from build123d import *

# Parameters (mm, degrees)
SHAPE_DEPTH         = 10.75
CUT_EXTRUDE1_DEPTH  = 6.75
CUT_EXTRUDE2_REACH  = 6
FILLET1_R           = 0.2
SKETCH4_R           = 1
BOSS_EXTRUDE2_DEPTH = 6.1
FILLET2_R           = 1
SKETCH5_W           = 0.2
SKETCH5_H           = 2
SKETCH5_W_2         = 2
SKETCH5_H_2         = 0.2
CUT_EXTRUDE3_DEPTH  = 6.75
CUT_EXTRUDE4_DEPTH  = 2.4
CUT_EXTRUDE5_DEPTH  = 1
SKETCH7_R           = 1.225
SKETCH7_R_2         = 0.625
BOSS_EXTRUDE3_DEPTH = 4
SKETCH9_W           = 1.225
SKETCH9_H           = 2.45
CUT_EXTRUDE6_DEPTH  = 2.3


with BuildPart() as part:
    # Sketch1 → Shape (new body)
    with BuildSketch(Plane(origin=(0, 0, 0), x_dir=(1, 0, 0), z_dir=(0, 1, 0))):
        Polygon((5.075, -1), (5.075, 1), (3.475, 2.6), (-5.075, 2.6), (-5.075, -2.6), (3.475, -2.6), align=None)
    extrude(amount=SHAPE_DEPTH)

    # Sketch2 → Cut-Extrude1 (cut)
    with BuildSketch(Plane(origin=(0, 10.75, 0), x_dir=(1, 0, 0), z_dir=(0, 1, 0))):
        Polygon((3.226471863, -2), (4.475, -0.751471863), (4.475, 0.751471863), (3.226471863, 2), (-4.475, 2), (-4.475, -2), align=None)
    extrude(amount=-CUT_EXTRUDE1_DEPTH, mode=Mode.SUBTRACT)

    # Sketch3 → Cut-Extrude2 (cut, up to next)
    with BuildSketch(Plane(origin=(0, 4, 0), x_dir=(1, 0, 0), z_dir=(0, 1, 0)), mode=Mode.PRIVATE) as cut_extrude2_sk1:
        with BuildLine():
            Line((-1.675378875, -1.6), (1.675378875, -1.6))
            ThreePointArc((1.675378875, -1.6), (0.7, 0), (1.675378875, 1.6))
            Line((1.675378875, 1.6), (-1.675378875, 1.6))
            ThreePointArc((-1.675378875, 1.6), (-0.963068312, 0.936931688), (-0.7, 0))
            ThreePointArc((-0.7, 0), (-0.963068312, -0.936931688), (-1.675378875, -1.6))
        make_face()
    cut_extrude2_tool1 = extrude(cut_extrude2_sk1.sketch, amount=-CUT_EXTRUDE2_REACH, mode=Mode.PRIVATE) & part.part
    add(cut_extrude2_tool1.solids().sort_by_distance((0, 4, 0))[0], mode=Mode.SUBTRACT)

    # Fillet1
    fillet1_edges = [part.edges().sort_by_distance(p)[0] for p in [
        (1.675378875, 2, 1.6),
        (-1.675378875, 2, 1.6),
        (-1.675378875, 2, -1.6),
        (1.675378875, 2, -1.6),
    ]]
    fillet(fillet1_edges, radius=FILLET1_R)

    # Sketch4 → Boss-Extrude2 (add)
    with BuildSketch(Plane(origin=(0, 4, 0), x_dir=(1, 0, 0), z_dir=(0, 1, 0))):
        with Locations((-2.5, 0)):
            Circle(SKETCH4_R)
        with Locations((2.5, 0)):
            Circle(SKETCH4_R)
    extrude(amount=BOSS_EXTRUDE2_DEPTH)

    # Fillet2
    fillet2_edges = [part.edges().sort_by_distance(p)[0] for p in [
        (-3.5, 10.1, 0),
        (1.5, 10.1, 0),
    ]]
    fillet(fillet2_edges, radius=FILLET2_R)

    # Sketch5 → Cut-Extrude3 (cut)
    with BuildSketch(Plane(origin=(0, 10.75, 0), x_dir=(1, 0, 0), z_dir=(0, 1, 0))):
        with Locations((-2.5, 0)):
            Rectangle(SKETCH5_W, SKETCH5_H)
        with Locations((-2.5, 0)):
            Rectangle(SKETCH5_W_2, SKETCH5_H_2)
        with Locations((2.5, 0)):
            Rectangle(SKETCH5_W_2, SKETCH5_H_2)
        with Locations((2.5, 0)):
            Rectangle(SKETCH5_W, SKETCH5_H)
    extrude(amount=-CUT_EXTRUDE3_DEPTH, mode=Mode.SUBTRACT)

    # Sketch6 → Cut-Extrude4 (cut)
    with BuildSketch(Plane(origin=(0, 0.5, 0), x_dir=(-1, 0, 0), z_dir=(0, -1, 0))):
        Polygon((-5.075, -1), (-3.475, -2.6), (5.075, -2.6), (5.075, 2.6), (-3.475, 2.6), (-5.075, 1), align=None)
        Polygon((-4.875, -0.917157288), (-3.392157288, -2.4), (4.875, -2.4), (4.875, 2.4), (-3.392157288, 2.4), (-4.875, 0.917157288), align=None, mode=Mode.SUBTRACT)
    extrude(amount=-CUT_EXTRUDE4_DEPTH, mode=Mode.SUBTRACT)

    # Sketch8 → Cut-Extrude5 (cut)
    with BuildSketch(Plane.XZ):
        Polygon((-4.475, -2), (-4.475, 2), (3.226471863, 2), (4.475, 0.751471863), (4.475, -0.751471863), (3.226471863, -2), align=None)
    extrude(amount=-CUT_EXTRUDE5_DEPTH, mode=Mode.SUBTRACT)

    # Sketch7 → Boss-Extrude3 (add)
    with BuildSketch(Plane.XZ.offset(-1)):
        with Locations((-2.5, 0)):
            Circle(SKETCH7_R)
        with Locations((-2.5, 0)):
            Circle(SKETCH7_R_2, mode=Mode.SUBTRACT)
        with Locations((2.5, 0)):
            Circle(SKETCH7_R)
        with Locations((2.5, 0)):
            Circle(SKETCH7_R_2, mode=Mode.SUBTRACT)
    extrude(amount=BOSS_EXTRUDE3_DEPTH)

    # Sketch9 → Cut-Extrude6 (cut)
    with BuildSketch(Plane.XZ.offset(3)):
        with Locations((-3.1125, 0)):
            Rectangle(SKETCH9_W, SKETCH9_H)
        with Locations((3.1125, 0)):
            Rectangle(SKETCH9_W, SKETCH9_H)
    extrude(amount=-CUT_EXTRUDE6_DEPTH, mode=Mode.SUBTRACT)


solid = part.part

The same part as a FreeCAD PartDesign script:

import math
import FreeCAD as App
import Part
import Sketcher
Q = App.Units.Quantity


def edges_at(feature, points):
    """Names of the edges that pass closest to the given points."""
    edges = feature.Shape.Edges
    near = lambda p: min(range(len(edges)), key=lambda i: edges[i].distToShape(Part.Vertex(*p))[0])
    return sorted({f"Edge{near(p) + 1}" for p in points})

doc = App.newDocument("Part")
body = doc.addObject("PartDesign::Body", "Body")

sketch1 = body.newObject("Sketcher::SketchObject", "Sketch")
sketch1.AttachmentSupport = (doc.getObject("XZ_Plane"), [""])
sketch1.MapMode = "FlatFace"
sketch1.addGeometry([
    Part.LineSegment(App.Vector(5.1, 1, 0), App.Vector(5.1, -1, 0)),
    Part.LineSegment(App.Vector(5.1, -1, 0), App.Vector(3.5, -2.6, 0)),
    Part.LineSegment(App.Vector(3.5, -2.6, 0), App.Vector(-5.1, -2.6, 0)),
    Part.LineSegment(App.Vector(-5.1, -2.6, 0), App.Vector(-5.1, 2.6, 0)),
    Part.LineSegment(App.Vector(-5.1, 2.6, 0), App.Vector(3.5, 2.6, 0)),
    Part.LineSegment(App.Vector(3.5, 2.6, 0), App.Vector(5.1, 1, 0)),
], False)
sketch1.addConstraint([
    Sketcher.Constraint("Coincident", 0, 2, 1, 1),
    Sketcher.Constraint("Coincident", 1, 2, 2, 1),
    Sketcher.Constraint("Coincident", 2, 2, 3, 1),
    Sketcher.Constraint("Coincident", 3, 2, 4, 1),
    Sketcher.Constraint("Coincident", 4, 2, 5, 1),
    Sketcher.Constraint("Coincident", 5, 2, 0, 1),
    Sketcher.Constraint("Vertical", 0),
    Sketcher.Constraint("Horizontal", 2),
    Sketcher.Constraint("Vertical", 3),
    Sketcher.Constraint("Horizontal", 4),
    Sketcher.Constraint("Symmetric", 1, 2, 4, 2, -1),
    Sketcher.Constraint("Perpendicular", 1, 5),
    Sketcher.Constraint("Equal", 1, 5),
    Sketcher.Constraint("DistanceY", 0, 2, 0, 1, Q("2 mm")),
    Sketcher.Constraint("DistanceY", 3, 1, 3, 2, Q("5.2 mm")),
    Sketcher.Constraint("DistanceX", 2, 2, 2, 1, Q("8.55 mm")),
    Sketcher.Constraint("DistanceX", -1, 1, 0, 2, Q("5.075 mm")),
])
pad1 = body.newObject("PartDesign::Pad", "Pad")
pad1.Profile = sketch1
pad1.Length = 10.75
pad1.Reversed = True

sketch2 = body.newObject("Sketcher::SketchObject", "Sketch001")
sketch2.AttachmentSupport = (doc.getObject("XZ_Plane"), [""])
sketch2.MapMode = "FlatFace"
sketch2.AttachmentOffset = App.Placement(App.Vector(0, 0, -10.75), App.Rotation())
sketch2.addGeometry([
    Part.LineSegment(App.Vector(3.2, 2, 0), App.Vector(4.5, 0.8, 0)),
    Part.LineSegment(App.Vector(4.5, 0.8, 0), App.Vector(4.5, -0.8, 0)),
    Part.LineSegment(App.Vector(4.5, -0.8, 0), App.Vector(3.2, -2, 0)),
    Part.LineSegment(App.Vector(3.2, -2, 0), App.Vector(-4.5, -2, 0)),
    Part.LineSegment(App.Vector(-4.5, -2, 0), App.Vector(-4.5, 2, 0)),
    Part.LineSegment(App.Vector(-4.5, 2, 0), App.Vector(3.2, 2, 0)),
], False)
sketch2.addConstraint([
    Sketcher.Constraint("Coincident", 0, 2, 1, 1),
    Sketcher.Constraint("Coincident", 1, 2, 2, 1),
    Sketcher.Constraint("Coincident", 2, 2, 3, 1),
    Sketcher.Constraint("Coincident", 3, 2, 4, 1),
    Sketcher.Constraint("Coincident", 4, 2, 5, 1),
    Sketcher.Constraint("Coincident", 5, 2, 0, 1),
    Sketcher.Constraint("Vertical", 1),
    Sketcher.Constraint("Horizontal", 3),
    Sketcher.Constraint("Vertical", 4),
    Sketcher.Constraint("Horizontal", 5),
    Sketcher.Constraint("Symmetric", 2, 2, 5, 2, -1),
    Sketcher.Constraint("Perpendicular", 0, 2),
    Sketcher.Constraint("Equal", 0, 2),
    Sketcher.Constraint("DistanceY", 4, 1, 4, 2, Q("4 mm")),
    Sketcher.Constraint("DistanceX", 3, 2, 1, 2, Q("8.95 mm")),
    Sketcher.Constraint("DistanceX", -1, 1, 0, 2, Q("4.475 mm")),
    Sketcher.Constraint("DistanceX", 3, 2, 3, 1, Q("7.701472 mm")),
])
pocket1 = body.newObject("PartDesign::Pocket", "Pocket")
pocket1.Profile = sketch2
pocket1.Length = 6.75
pocket1.Reversed = True

sketch3 = body.newObject("Sketcher::SketchObject", "Sketch002")
sketch3.AttachmentSupport = (doc.getObject("XZ_Plane"), [""])
sketch3.MapMode = "FlatFace"
sketch3.AttachmentOffset = App.Placement(App.Vector(0, 0, -4), App.Rotation())
sketch3.addGeometry([
    Part.LineSegment(App.Vector(-1.7, 1.6, 0), App.Vector(1.7, 1.6, 0)),
    Part.ArcOfCircle(Part.Circle(App.Vector(2.5, 0, 0), App.Vector(0, 0, 1), 1.8), math.radians(117), math.radians(243)),
    Part.LineSegment(App.Vector(1.7, -1.6, 0), App.Vector(-1.7, -1.6, 0)),
    Part.ArcOfCircle(Part.Circle(App.Vector(-2.5, 0, 0), App.Vector(0, 0, 1), 1.8), math.radians(-63), math.radians(0)),
    Part.ArcOfCircle(Part.Circle(App.Vector(-2.5, 0, 0), App.Vector(0, 0, 1), 1.8), math.radians(0), math.radians(63)),
], False)
sketch3.addConstraint([
    Sketcher.Constraint("Coincident", 0, 2, 1, 1),
    Sketcher.Constraint("Coincident", 1, 2, 2, 1),
    Sketcher.Constraint("Coincident", 2, 2, 3, 1),
    Sketcher.Constraint("Tangent", 3, 2, 4, 1),
    Sketcher.Constraint("Coincident", 4, 2, 0, 1),
    Sketcher.Constraint("Horizontal", 0),
    Sketcher.Constraint("Horizontal", 2),
    Sketcher.Constraint("Equal", 1, 3),
    Sketcher.Constraint("Equal", 3, 4),
    Sketcher.Constraint("Symmetric", 1, 3, 3, 3, -1, 1),
    Sketcher.Constraint("Symmetric", 0, 2, 1, 2, -1),
    Sketcher.Constraint("PointOnObject", 3, 2, -1),
    Sketcher.Constraint("Radius", 1, Q("1.8 mm")),
    Sketcher.Constraint("DistanceX", 3, 3, 1, 3, Q("5 mm")),
    Sketcher.Constraint("DistanceY", -1, 1, 0, 2, Q("1.6 mm")),
])
pocket2 = body.newObject("PartDesign::Pocket", "Pocket001")
pocket2.Profile = sketch3
pocket2.Type = "UpToFirst"
pocket2.Reversed = True
doc.recompute()

fillet = body.newObject("PartDesign::Fillet", "Fillet")
fillet.Base = (pocket2, edges_at(pocket2, [
    (1.675, 2, 1.6),
    (-1.675, 2, 1.6),
    (-1.675, 2, -1.6),
    (1.675, 2, -1.6),
]))
fillet.Radius = 0.2

sketch4 = body.newObject("Sketcher::SketchObject", "Sketch003")
sketch4.AttachmentSupport = (doc.getObject("XZ_Plane"), [""])
sketch4.MapMode = "FlatFace"
sketch4.AttachmentOffset = App.Placement(App.Vector(0, 0, -4), App.Rotation())
sketch4.addGeometry([
    Part.Circle(App.Vector(-2.5, 0, 0), App.Vector(0, 0, 1), 1),
    Part.Circle(App.Vector(2.5, 0, 0), App.Vector(0, 0, 1), 1),
], False)
sketch4.addConstraint([
    Sketcher.Constraint("Equal", 0, 1),
    Sketcher.Constraint("Symmetric", 0, 3, 1, 3, -1, 1),
    Sketcher.Constraint("PointOnObject", 0, 3, -1),
    Sketcher.Constraint("Diameter", 0, Q("2 mm")),
    Sketcher.Constraint("DistanceX", 0, 3, 1, 3, Q("5 mm")),
])
pad2 = body.newObject("PartDesign::Pad", "Pad001")
pad2.Profile = sketch4
pad2.Length = 6.1
pad2.Reversed = True
doc.recompute()

fillet2 = body.newObject("PartDesign::Fillet", "Fillet001")
fillet2.Base = (pad2, edges_at(pad2, [(-3.5, 10.1, 0), (1.5, 10.1, 0)]))
fillet2.Radius = 1

sketch5 = body.newObject("Sketcher::SketchObject", "Sketch004")
sketch5.AttachmentSupport = (doc.getObject("XZ_Plane"), [""])
sketch5.MapMode = "FlatFace"
sketch5.AttachmentOffset = App.Placement(App.Vector(0, 0, -10.75), App.Rotation())
sketch5.addGeometry([
    Part.LineSegment(App.Vector(-2.6, 0.1, 0), App.Vector(-2.6, 1, 0)),
    Part.LineSegment(App.Vector(-2.6, 1, 0), App.Vector(-2.4, 1, 0)),
    Part.LineSegment(App.Vector(-2.4, 1, 0), App.Vector(-2.4, 0.1, 0)),
    Part.LineSegment(App.Vector(-2.4, 0.1, 0), App.Vector(-1.5, 0.1, 0)),
    Part.LineSegment(App.Vector(-1.5, 0.1, 0), App.Vector(-1.5, -0.1, 0)),
    Part.LineSegment(App.Vector(-1.5, -0.1, 0), App.Vector(-2.4, -0.1, 0)),
    Part.LineSegment(App.Vector(-2.4, -0.1, 0), App.Vector(-2.4, -1, 0)),
    Part.LineSegment(App.Vector(-2.4, -1, 0), App.Vector(-2.6, -1, 0)),
    Part.LineSegment(App.Vector(-2.6, -1, 0), App.Vector(-2.6, -0.1, 0)),
    Part.LineSegment(App.Vector(-2.6, -0.1, 0), App.Vector(-3.5, -0.1, 0)),
    Part.LineSegment(App.Vector(-3.5, -0.1, 0), App.Vector(-3.5, 0.1, 0)),
    Part.LineSegment(App.Vector(-3.5, 0.1, 0), App.Vector(-2.6, 0.1, 0)),
    Part.LineSegment(App.Vector(1.5, -0.1, 0), App.Vector(1.5, 0.1, 0)),
    Part.LineSegment(App.Vector(1.5, 0.1, 0), App.Vector(2.4, 0.1, 0)),
    Part.LineSegment(App.Vector(2.4, 0.1, 0), App.Vector(2.4, 1, 0)),
    Part.LineSegment(App.Vector(2.4, 1, 0), App.Vector(2.6, 1, 0)),
    Part.LineSegment(App.Vector(2.6, 1, 0), App.Vector(2.6, 0.1, 0)),
    Part.LineSegment(App.Vector(2.6, 0.1, 0), App.Vector(3.5, 0.1, 0)),
    Part.LineSegment(App.Vector(3.5, 0.1, 0), App.Vector(3.5, -0.1, 0)),
    Part.LineSegment(App.Vector(3.5, -0.1, 0), App.Vector(2.6, -0.1, 0)),
    Part.LineSegment(App.Vector(2.6, -0.1, 0), App.Vector(2.6, -1, 0)),
    Part.LineSegment(App.Vector(2.6, -1, 0), App.Vector(2.4, -1, 0)),
    Part.LineSegment(App.Vector(2.4, -1, 0), App.Vector(2.4, -0.1, 0)),
    Part.LineSegment(App.Vector(2.4, -0.1, 0), App.Vector(1.5, -0.1, 0)),
], False)
sketch5.addConstraint([
    Sketcher.Constraint("Coincident", 0, 2, 1, 1),
    Sketcher.Constraint("Coincident", 1, 2, 2, 1),
    Sketcher.Constraint("Coincident", 2, 2, 3, 1),
    Sketcher.Constraint("Coincident", 3, 2, 4, 1),
    Sketcher.Constraint("Coincident", 4, 2, 5, 1),
    Sketcher.Constraint("Coincident", 5, 2, 6, 1),
    Sketcher.Constraint("Coincident", 6, 2, 7, 1),
    Sketcher.Constraint("Coincident", 7, 2, 8, 1),
    Sketcher.Constraint("Coincident", 8, 2, 9, 1),
    Sketcher.Constraint("Coincident", 9, 2, 10, 1),
    Sketcher.Constraint("Coincident", 10, 2, 11, 1),
    Sketcher.Constraint("Coincident", 11, 2, 0, 1),
    Sketcher.Constraint("Coincident", 12, 2, 13, 1),
    Sketcher.Constraint("Coincident", 13, 2, 14, 1),
    Sketcher.Constraint("Coincident", 14, 2, 15, 1),
    Sketcher.Constraint("Coincident", 15, 2, 16, 1),
    Sketcher.Constraint("Coincident", 16, 2, 17, 1),
    Sketcher.Constraint("Coincident", 17, 2, 18, 1),
    Sketcher.Constraint("Coincident", 18, 2, 19, 1),
    Sketcher.Constraint("Coincident", 19, 2, 20, 1),
    Sketcher.Constraint("Coincident", 20, 2, 21, 1),
    Sketcher.Constraint("Coincident", 21, 2, 22, 1),
    Sketcher.Constraint("Coincident", 22, 2, 23, 1),
    Sketcher.Constraint("Coincident", 23, 2, 12, 1),
    Sketcher.Constraint("Vertical", 0),
    Sketcher.Constraint("Horizontal", 1),
    Sketcher.Constraint("Vertical", 2),
    Sketcher.Constraint("Horizontal", 3),
    Sketcher.Constraint("Vertical", 4),
    Sketcher.Constraint("Horizontal", 5),
    Sketcher.Constraint("Vertical", 6),
    Sketcher.Constraint("Horizontal", 7),
    Sketcher.Constraint("Vertical", 8),
    Sketcher.Constraint("Horizontal", 9),
    Sketcher.Constraint("Vertical", 10),
    Sketcher.Constraint("Horizontal", 11),
    Sketcher.Constraint("Vertical", 12),
    Sketcher.Constraint("Horizontal", 13),
    Sketcher.Constraint("Vertical", 14),
    Sketcher.Constraint("Horizontal", 15),
    Sketcher.Constraint("Vertical", 16),
    Sketcher.Constraint("Horizontal", 17),
    Sketcher.Constraint("Vertical", 18),
    Sketcher.Constraint("Horizontal", 19),
    Sketcher.Constraint("Vertical", 20),
    Sketcher.Constraint("Horizontal", 21),
    Sketcher.Constraint("Vertical", 22),
    Sketcher.Constraint("Horizontal", 23),
    Sketcher.Constraint("Symmetric", 4, 2, 12, 2, -1, 1),
    Sketcher.Constraint("Symmetric", 6, 2, 14, 2, -1, 1),
    Sketcher.Constraint("Symmetric", 8, 2, 16, 2, -1, 1),
    Sketcher.Constraint("Symmetric", 10, 2, 18, 2, -1, 1),
    Sketcher.Constraint("Symmetric", 0, 2, 20, 2, -1, 1),
    Sketcher.Constraint("Symmetric", 2, 2, 22, 2, -1, 1),
    Sketcher.Constraint("Symmetric", 2, 2, 13, 2, -2),
    Sketcher.Constraint("Symmetric", 0, 2, 15, 2, -2),
    Sketcher.Constraint("Horizontal", 5, 2, 8, 2),
    Sketcher.Constraint("Horizontal", 3, 2, 10, 2),
    Sketcher.Constraint("Equal", 5, 9),
    Sketcher.Constraint("Equal", 23, 0),
    Sketcher.Constraint("Equal", 21, 4),
    Sketcher.Constraint("DistanceX", 1, 1, 1, 2, Q("0.2 mm")),
    Sketcher.Constraint("DistanceX", 3, 1, 3, 2, Q("0.9 mm")),
    Sketcher.Constraint("DistanceX", 3, 2, 12, 2, Q("3 mm")),
])
pocket3 = body.newObject("PartDesign::Pocket", "Pocket002")
pocket3.Profile = sketch5
pocket3.Length = 6.75
pocket3.Reversed = True

sketch6 = body.newObject("Sketcher::SketchObject", "Sketch005")
sketch6.AttachmentSupport = (doc.getObject("XZ_Plane"), [""])
sketch6.MapMode = "FlatFace"
sketch6.AttachmentOffset = App.Placement(App.Vector(0, 0, -0.5), App.Rotation())
sketch6.addGeometry([
    Part.LineSegment(App.Vector(5.1, 1, 0), App.Vector(3.5, 2.6, 0)),
    Part.LineSegment(App.Vector(3.5, 2.6, 0), App.Vector(-5.1, 2.6, 0)),
    Part.LineSegment(App.Vector(-5.1, 2.6, 0), App.Vector(-5.1, -2.6, 0)),
    Part.LineSegment(App.Vector(-5.1, -2.6, 0), App.Vector(3.5, -2.6, 0)),
    Part.LineSegment(App.Vector(3.5, -2.6, 0), App.Vector(5.1, -1, 0)),
    Part.LineSegment(App.Vector(5.1, -1, 0), App.Vector(5.1, 1, 0)),
    Part.LineSegment(App.Vector(3.4, 2.4, 0), App.Vector(4.9, 0.9, 0)),
    Part.LineSegment(App.Vector(4.9, 0.9, 0), App.Vector(4.9, -0.9, 0)),
    Part.LineSegment(App.Vector(4.9, -0.9, 0), App.Vector(3.4, -2.4, 0)),
    Part.LineSegment(App.Vector(3.4, -2.4, 0), App.Vector(-4.9, -2.4, 0)),
    Part.LineSegment(App.Vector(-4.9, -2.4, 0), App.Vector(-4.9, 2.4, 0)),
    Part.LineSegment(App.Vector(-4.9, 2.4, 0), App.Vector(3.4, 2.4, 0)),
], False)
sketch6.addConstraint([
    Sketcher.Constraint("Coincident", 0, 2, 1, 1),
    Sketcher.Constraint("Coincident", 1, 2, 2, 1),
    Sketcher.Constraint("Coincident", 2, 2, 3, 1),
    Sketcher.Constraint("Coincident", 3, 2, 4, 1),
    Sketcher.Constraint("Coincident", 4, 2, 5, 1),
    Sketcher.Constraint("Coincident", 5, 2, 0, 1),
    Sketcher.Constraint("Coincident", 6, 2, 7, 1),
    Sketcher.Constraint("Coincident", 7, 2, 8, 1),
    Sketcher.Constraint("Coincident", 8, 2, 9, 1),
    Sketcher.Constraint("Coincident", 9, 2, 10, 1),
    Sketcher.Constraint("Coincident", 10, 2, 11, 1),
    Sketcher.Constraint("Coincident", 11, 2, 6, 1),
    Sketcher.Constraint("Horizontal", 1),
    Sketcher.Constraint("Vertical", 2),
    Sketcher.Constraint("Horizontal", 3),
    Sketcher.Constraint("Vertical", 5),
    Sketcher.Constraint("Vertical", 7),
    Sketcher.Constraint("Horizontal", 9),
    Sketcher.Constraint("Vertical", 10),
    Sketcher.Constraint("Horizontal", 11),
    Sketcher.Constraint("Symmetric", 0, 2, 3, 2, -1),
    Sketcher.Constraint("Symmetric", 8, 2, 11, 2, -1),
    Sketcher.Constraint("Perpendicular", 0, 4),
    Sketcher.Constraint("Perpendicular", 4, 6),
    Sketcher.Constraint("Perpendicular", 6, 8),
    Sketcher.Constraint("Equal", 0, 4),
    Sketcher.Constraint("DistanceY", 5, 1, 5, 2, Q("2 mm")),
    Sketcher.Constraint("DistanceY", 2, 2, 2, 1, Q("5.2 mm")),
    Sketcher.Constraint("DistanceY", 10, 1, 10, 2, Q("4.8 mm")),
    Sketcher.Constraint("DistanceX", 1, 2, 1, 1, Q("8.55 mm")),
    Sketcher.Constraint("DistanceX", 6, 2, 5, 2, Q("0.2 mm")),
    Sketcher.Constraint("DistanceX", 2, 2, 9, 2, Q("0.2 mm")),
    Sketcher.Constraint("DistanceX", -1, 1, 0, 2, Q("3.475 mm")),
    Sketcher.Constraint("DistanceX", 9, 2, 9, 1, Q("8.267157 mm")),
])
pocket4 = body.newObject("PartDesign::Pocket", "Pocket003")
pocket4.Profile = sketch6
pocket4.Length = 2.4

sketch7 = body.newObject("Sketcher::SketchObject", "Sketch006")
sketch7.AttachmentSupport = (doc.getObject("XZ_Plane"), [""])
sketch7.MapMode = "FlatFace"
sketch7.addGeometry([
    Part.LineSegment(App.Vector(-4.5, 2, 0), App.Vector(-4.5, -2, 0)),
    Part.LineSegment(App.Vector(-4.5, -2, 0), App.Vector(3.2, -2, 0)),
    Part.LineSegment(App.Vector(3.2, -2, 0), App.Vector(4.5, -0.8, 0)),
    Part.LineSegment(App.Vector(4.5, -0.8, 0), App.Vector(4.5, 0.8, 0)),
    Part.LineSegment(App.Vector(4.5, 0.8, 0), App.Vector(3.2, 2, 0)),
    Part.LineSegment(App.Vector(3.2, 2, 0), App.Vector(-4.5, 2, 0)),
], False)
sketch7.addConstraint([
    Sketcher.Constraint("Coincident", 0, 2, 1, 1),
    Sketcher.Constraint("Coincident", 1, 2, 2, 1),
    Sketcher.Constraint("Coincident", 2, 2, 3, 1),
    Sketcher.Constraint("Coincident", 3, 2, 4, 1),
    Sketcher.Constraint("Coincident", 4, 2, 5, 1),
    Sketcher.Constraint("Coincident", 5, 2, 0, 1),
    Sketcher.Constraint("Vertical", 0),
    Sketcher.Constraint("Horizontal", 1),
    Sketcher.Constraint("Vertical", 3),
    Sketcher.Constraint("Horizontal", 5),
    Sketcher.Constraint("Symmetric", 1, 2, 4, 2, -1),
    Sketcher.Constraint("Perpendicular", 2, 4),
    Sketcher.Constraint("Equal", 2, 4),
    Sketcher.Constraint("DistanceY", 0, 2, 0, 1, Q("4 mm")),
    Sketcher.Constraint("DistanceX", 0, 2, 2, 2, Q("8.95 mm")),
    Sketcher.Constraint("DistanceX", 0, 2, -1, 1, Q("4.475 mm")),
    Sketcher.Constraint("DistanceX", 1, 1, 1, 2, Q("7.701472 mm")),
])
pocket5 = body.newObject("PartDesign::Pocket", "Pocket004")
pocket5.Profile = sketch7
pocket5.Length = 1

sketch8 = body.newObject("Sketcher::SketchObject", "Sketch007")
sketch8.AttachmentSupport = (doc.getObject("XZ_Plane"), [""])
sketch8.MapMode = "FlatFace"
sketch8.AttachmentOffset = App.Placement(App.Vector(0, 0, -1), App.Rotation())
sketch8.addGeometry([
    Part.Circle(App.Vector(-2.5, 0, 0), App.Vector(0, 0, 1), 1.2),
    Part.Circle(App.Vector(-2.5, 0, 0), App.Vector(0, 0, 1), 0.6),
    Part.Circle(App.Vector(2.5, 0, 0), App.Vector(0, 0, 1), 1.2),
    Part.Circle(App.Vector(2.5, 0, 0), App.Vector(0, 0, 1), 0.6),
], False)
sketch8.addConstraint([
    Sketcher.Constraint("Coincident", 1, 3, 0, 3),
    Sketcher.Constraint("Coincident", 3, 3, 2, 3),
    Sketcher.Constraint("Equal", 0, 2),
    Sketcher.Constraint("Equal", 1, 3),
    Sketcher.Constraint("Symmetric", 0, 3, 2, 3, -1, 1),
    Sketcher.Constraint("PointOnObject", 0, 3, -1),
    Sketcher.Constraint("Diameter", 0, Q("2.45 mm")),
    Sketcher.Constraint("Diameter", 1, Q("1.25 mm")),
    Sketcher.Constraint("DistanceX", 0, 3, 2, 3, Q("5 mm")),
])
pad3 = body.newObject("PartDesign::Pad", "Pad002")
pad3.Profile = sketch8
pad3.Length = 4

sketch9 = body.newObject("Sketcher::SketchObject", "Sketch008")
sketch9.AttachmentSupport = (doc.getObject("XZ_Plane"), [""])
sketch9.MapMode = "FlatFace"
sketch9.AttachmentOffset = App.Placement(App.Vector(0, 0, 3), App.Rotation())
sketch9.addGeometry([
    Part.LineSegment(App.Vector(-3.7, 1.2, 0), App.Vector(-3.7, -1.2, 0)),
    Part.LineSegment(App.Vector(-3.7, -1.2, 0), App.Vector(-2.5, -1.2, 0)),
    Part.LineSegment(App.Vector(-2.5, -1.2, 0), App.Vector(-2.5, 1.2, 0)),
    Part.LineSegment(App.Vector(-2.5, 1.2, 0), App.Vector(-3.7, 1.2, 0)),
    Part.LineSegment(App.Vector(2.5, 1.2, 0), App.Vector(2.5, -1.2, 0)),
    Part.LineSegment(App.Vector(2.5, -1.2, 0), App.Vector(3.7, -1.2, 0)),
    Part.LineSegment(App.Vector(3.7, -1.2, 0), App.Vector(3.7, 1.2, 0)),
    Part.LineSegment(App.Vector(3.7, 1.2, 0), App.Vector(2.5, 1.2, 0)),
], False)
sketch9.addConstraint([
    Sketcher.Constraint("Coincident", 0, 2, 1, 1),
    Sketcher.Constraint("Coincident", 1, 2, 2, 1),
    Sketcher.Constraint("Coincident", 2, 2, 3, 1),
    Sketcher.Constraint("Coincident", 3, 2, 0, 1),
    Sketcher.Constraint("Coincident", 4, 2, 5, 1),
    Sketcher.Constraint("Coincident", 5, 2, 6, 1),
    Sketcher.Constraint("Coincident", 6, 2, 7, 1),
    Sketcher.Constraint("Coincident", 7, 2, 4, 1),
    Sketcher.Constraint("Vertical", 0),
    Sketcher.Constraint("Horizontal", 1),
    Sketcher.Constraint("Vertical", 2),
    Sketcher.Constraint("Horizontal", 3),
    Sketcher.Constraint("Vertical", 4),
    Sketcher.Constraint("Horizontal", 5),
    Sketcher.Constraint("Vertical", 6),
    Sketcher.Constraint("Horizontal", 7),
    Sketcher.Constraint("Symmetric", 2, 2, 4, 2, -1, 1),
    Sketcher.Constraint("Symmetric", 0, 2, 6, 2, -1, 1),
    Sketcher.Constraint("Horizontal", 1, 2, 4, 2),
    Sketcher.Constraint("DistanceX", 1, 2, 4, 2, Q("5 mm")),
    Sketcher.Constraint("DistanceY", 0, 2, 0, 1, Q("2.45 mm")),
    Sketcher.Constraint("DistanceX", 1, 1, 1, 2, Q("1.225 mm")),
])
pocket6 = body.newObject("PartDesign::Pocket", "Pocket005")
pocket6.Profile = sketch9
pocket6.Length = 2.3

doc.recompute()
